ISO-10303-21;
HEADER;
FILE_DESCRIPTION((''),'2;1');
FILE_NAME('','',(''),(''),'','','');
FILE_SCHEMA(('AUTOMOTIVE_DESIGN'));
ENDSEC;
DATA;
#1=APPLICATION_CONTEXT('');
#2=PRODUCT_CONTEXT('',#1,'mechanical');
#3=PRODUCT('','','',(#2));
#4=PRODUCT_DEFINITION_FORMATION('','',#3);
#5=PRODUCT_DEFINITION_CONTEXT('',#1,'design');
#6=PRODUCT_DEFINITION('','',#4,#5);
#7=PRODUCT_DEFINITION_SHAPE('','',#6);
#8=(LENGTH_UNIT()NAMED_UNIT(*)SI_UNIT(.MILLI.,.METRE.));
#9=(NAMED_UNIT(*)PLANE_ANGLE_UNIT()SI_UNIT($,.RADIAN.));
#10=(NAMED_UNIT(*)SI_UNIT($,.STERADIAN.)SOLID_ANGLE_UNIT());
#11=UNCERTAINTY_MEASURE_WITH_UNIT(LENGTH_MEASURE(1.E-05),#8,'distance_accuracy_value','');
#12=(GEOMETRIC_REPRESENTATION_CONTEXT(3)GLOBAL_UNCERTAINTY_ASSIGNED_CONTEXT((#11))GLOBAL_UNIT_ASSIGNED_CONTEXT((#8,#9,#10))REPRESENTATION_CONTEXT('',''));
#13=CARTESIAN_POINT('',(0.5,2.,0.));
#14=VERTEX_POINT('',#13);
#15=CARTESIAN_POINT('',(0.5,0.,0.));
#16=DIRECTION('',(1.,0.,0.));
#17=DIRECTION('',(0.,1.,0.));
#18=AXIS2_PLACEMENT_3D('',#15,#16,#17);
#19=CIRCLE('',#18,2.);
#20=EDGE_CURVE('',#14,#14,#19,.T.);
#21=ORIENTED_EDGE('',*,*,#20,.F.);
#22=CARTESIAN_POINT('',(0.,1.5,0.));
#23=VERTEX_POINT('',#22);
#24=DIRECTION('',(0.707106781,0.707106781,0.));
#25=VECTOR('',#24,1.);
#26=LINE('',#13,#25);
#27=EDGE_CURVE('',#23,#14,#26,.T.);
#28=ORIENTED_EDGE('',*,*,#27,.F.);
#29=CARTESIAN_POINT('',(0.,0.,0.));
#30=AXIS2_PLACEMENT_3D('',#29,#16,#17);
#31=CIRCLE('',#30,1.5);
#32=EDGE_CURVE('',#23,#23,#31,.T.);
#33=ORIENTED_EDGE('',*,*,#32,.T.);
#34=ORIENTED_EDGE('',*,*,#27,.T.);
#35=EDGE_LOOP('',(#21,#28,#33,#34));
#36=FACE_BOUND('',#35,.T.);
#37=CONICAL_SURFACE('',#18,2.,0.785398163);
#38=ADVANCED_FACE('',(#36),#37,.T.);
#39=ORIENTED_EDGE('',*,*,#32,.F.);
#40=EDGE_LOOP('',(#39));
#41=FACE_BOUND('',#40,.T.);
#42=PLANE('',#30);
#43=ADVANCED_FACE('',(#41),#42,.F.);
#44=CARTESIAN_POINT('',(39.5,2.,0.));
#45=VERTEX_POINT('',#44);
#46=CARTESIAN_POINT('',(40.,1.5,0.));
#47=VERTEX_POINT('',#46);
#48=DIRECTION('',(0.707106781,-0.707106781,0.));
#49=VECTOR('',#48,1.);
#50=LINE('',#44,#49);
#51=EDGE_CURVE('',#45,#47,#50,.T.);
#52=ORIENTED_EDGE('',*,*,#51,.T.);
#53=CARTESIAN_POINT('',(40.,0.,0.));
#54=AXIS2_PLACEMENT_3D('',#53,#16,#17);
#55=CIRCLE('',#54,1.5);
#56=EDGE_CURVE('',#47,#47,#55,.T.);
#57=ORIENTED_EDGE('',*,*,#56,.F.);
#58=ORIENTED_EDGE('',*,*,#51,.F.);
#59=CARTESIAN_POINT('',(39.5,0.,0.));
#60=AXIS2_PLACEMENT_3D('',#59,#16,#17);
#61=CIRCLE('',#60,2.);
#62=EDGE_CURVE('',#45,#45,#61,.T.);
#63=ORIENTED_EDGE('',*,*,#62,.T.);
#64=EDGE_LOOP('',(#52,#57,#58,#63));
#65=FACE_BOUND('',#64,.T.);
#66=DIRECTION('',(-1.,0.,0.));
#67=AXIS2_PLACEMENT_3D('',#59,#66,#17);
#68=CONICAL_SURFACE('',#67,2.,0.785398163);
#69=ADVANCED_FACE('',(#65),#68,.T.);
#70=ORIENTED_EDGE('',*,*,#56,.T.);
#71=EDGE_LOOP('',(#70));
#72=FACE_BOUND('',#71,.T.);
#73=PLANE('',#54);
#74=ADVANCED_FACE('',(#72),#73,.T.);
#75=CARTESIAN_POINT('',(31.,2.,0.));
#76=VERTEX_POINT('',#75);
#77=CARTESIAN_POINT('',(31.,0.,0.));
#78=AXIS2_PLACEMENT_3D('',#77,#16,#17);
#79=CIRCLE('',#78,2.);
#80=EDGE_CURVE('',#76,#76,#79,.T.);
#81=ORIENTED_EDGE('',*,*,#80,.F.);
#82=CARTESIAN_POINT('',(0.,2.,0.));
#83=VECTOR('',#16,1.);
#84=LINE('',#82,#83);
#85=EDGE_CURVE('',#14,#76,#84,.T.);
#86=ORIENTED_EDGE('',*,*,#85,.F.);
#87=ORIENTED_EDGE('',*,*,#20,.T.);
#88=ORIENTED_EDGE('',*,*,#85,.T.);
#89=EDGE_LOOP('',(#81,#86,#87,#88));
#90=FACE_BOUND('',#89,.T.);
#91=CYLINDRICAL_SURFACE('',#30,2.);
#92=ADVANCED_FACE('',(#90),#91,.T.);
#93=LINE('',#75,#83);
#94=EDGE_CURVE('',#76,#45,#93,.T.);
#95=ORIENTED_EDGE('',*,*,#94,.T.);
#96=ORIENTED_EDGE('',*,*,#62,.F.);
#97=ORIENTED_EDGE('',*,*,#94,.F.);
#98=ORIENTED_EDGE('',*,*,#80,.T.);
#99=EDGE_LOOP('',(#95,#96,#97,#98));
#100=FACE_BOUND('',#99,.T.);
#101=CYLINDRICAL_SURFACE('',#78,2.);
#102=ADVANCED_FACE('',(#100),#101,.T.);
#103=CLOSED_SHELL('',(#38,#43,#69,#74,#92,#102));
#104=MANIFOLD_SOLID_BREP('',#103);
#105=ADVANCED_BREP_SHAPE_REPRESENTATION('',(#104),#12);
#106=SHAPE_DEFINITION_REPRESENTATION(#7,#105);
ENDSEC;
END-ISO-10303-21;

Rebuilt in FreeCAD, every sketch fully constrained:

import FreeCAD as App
import Part
import Sketcher


def edges_at(feature, points):
    """Names of the edges that pass closest to the given points."""
    edges = feature.Shape.Edges
    near = lambda p: min(range(len(edges)), key=lambda i: edges[i].distToShape(Part.Vertex(*p))[0])
    return sorted({f"Edge{near(p) + 1}" for p in points})


def add_polygon(sketch, points):
    """Adds a closed chain of lines whose ends are joined by coincident constraints."""
    first, n = sketch.GeometryCount, len(points)
    for a, b in zip(points, points[1:] + points[:1]):
        sketch.addGeometry(Part.LineSegment(App.Vector(*a, 0), App.Vector(*b, 0)), False)
    for i in range(n):
        sketch.addConstraint(Sketcher.Constraint("Coincident", first + i, 2, first + (i + 1) % n, 1))

doc = App.newDocument("Part")
params = doc.addObject("Spreadsheet::Sheet", "Params")
for row, (alias, value) in enumerate([
    ("sketch1_width", "40 mm"),
    ("sketch1_height", "2 mm"),
    ("revolution_angle", "360 deg"),
    ("chamfer_size", "0.5 mm"),
    ("chamfer2_size", "0.5 mm"),
], start=1):
    params.set(f"A{row}", alias)
    params.set(f"B{row}", "=" + value)
    params.setAlias(f"B{row}", alias)

body = doc.addObject("PartDesign::Body", "Body")

sketch1 = doc.addObject("Sketcher::SketchObject", "Sketch")
body.addObject(sketch1)
sketch1.AttachmentSupport = (doc.XY_Plane, [""])
sketch1.MapMode = "FlatFace"
add_polygon(sketch1, [(0, 2), (0, 0), (40, 0), (40, 2)])
sketch1.addConstraint([
    Sketcher.Constraint("Vertical", 0),
    Sketcher.Constraint("Horizontal", 1),
    Sketcher.Constraint("Vertical", 2),
    Sketcher.Constraint("Horizontal", 3),
    Sketcher.Constraint("Coincident", 0, 2, -1, 1),
    Sketcher.Constraint("DistanceX", 1, 1, 1, 2, 40.0),
    Sketcher.Constraint("DistanceY", 0, 2, 0, 1, 2.0),
])
sketch1.setExpression("Constraints[9]", "Params.sketch1_width")
sketch1.setExpression("Constraints[10]", "Params.sketch1_height")
revolution = doc.addObject("PartDesign::Revolution", "Revolution")
body.addObject(revolution)
revolution.Profile = sketch1
revolution.ReferenceAxis = (sketch1, ["H_Axis"])
revolution.setExpression("Angle", "Params.revolution_angle")
doc.recompute()

chamfer = doc.addObject("PartDesign::Chamfer", "Chamfer")
body.addObject(chamfer)
chamfer.Base = (revolution, edges_at(revolution, [(0, -2, 0)]))
chamfer.setExpression("Size", "Params.chamfer_size")
doc.recompute()

chamfer2 = doc.addObject("PartDesign::Chamfer", "Chamfer001")
body.addObject(chamfer2)
chamfer2.Base = (chamfer, edges_at(chamfer, [(40, -2, 0)]))
chamfer2.setExpression("Size", "Params.chamfer2_size")

doc.recompute()
